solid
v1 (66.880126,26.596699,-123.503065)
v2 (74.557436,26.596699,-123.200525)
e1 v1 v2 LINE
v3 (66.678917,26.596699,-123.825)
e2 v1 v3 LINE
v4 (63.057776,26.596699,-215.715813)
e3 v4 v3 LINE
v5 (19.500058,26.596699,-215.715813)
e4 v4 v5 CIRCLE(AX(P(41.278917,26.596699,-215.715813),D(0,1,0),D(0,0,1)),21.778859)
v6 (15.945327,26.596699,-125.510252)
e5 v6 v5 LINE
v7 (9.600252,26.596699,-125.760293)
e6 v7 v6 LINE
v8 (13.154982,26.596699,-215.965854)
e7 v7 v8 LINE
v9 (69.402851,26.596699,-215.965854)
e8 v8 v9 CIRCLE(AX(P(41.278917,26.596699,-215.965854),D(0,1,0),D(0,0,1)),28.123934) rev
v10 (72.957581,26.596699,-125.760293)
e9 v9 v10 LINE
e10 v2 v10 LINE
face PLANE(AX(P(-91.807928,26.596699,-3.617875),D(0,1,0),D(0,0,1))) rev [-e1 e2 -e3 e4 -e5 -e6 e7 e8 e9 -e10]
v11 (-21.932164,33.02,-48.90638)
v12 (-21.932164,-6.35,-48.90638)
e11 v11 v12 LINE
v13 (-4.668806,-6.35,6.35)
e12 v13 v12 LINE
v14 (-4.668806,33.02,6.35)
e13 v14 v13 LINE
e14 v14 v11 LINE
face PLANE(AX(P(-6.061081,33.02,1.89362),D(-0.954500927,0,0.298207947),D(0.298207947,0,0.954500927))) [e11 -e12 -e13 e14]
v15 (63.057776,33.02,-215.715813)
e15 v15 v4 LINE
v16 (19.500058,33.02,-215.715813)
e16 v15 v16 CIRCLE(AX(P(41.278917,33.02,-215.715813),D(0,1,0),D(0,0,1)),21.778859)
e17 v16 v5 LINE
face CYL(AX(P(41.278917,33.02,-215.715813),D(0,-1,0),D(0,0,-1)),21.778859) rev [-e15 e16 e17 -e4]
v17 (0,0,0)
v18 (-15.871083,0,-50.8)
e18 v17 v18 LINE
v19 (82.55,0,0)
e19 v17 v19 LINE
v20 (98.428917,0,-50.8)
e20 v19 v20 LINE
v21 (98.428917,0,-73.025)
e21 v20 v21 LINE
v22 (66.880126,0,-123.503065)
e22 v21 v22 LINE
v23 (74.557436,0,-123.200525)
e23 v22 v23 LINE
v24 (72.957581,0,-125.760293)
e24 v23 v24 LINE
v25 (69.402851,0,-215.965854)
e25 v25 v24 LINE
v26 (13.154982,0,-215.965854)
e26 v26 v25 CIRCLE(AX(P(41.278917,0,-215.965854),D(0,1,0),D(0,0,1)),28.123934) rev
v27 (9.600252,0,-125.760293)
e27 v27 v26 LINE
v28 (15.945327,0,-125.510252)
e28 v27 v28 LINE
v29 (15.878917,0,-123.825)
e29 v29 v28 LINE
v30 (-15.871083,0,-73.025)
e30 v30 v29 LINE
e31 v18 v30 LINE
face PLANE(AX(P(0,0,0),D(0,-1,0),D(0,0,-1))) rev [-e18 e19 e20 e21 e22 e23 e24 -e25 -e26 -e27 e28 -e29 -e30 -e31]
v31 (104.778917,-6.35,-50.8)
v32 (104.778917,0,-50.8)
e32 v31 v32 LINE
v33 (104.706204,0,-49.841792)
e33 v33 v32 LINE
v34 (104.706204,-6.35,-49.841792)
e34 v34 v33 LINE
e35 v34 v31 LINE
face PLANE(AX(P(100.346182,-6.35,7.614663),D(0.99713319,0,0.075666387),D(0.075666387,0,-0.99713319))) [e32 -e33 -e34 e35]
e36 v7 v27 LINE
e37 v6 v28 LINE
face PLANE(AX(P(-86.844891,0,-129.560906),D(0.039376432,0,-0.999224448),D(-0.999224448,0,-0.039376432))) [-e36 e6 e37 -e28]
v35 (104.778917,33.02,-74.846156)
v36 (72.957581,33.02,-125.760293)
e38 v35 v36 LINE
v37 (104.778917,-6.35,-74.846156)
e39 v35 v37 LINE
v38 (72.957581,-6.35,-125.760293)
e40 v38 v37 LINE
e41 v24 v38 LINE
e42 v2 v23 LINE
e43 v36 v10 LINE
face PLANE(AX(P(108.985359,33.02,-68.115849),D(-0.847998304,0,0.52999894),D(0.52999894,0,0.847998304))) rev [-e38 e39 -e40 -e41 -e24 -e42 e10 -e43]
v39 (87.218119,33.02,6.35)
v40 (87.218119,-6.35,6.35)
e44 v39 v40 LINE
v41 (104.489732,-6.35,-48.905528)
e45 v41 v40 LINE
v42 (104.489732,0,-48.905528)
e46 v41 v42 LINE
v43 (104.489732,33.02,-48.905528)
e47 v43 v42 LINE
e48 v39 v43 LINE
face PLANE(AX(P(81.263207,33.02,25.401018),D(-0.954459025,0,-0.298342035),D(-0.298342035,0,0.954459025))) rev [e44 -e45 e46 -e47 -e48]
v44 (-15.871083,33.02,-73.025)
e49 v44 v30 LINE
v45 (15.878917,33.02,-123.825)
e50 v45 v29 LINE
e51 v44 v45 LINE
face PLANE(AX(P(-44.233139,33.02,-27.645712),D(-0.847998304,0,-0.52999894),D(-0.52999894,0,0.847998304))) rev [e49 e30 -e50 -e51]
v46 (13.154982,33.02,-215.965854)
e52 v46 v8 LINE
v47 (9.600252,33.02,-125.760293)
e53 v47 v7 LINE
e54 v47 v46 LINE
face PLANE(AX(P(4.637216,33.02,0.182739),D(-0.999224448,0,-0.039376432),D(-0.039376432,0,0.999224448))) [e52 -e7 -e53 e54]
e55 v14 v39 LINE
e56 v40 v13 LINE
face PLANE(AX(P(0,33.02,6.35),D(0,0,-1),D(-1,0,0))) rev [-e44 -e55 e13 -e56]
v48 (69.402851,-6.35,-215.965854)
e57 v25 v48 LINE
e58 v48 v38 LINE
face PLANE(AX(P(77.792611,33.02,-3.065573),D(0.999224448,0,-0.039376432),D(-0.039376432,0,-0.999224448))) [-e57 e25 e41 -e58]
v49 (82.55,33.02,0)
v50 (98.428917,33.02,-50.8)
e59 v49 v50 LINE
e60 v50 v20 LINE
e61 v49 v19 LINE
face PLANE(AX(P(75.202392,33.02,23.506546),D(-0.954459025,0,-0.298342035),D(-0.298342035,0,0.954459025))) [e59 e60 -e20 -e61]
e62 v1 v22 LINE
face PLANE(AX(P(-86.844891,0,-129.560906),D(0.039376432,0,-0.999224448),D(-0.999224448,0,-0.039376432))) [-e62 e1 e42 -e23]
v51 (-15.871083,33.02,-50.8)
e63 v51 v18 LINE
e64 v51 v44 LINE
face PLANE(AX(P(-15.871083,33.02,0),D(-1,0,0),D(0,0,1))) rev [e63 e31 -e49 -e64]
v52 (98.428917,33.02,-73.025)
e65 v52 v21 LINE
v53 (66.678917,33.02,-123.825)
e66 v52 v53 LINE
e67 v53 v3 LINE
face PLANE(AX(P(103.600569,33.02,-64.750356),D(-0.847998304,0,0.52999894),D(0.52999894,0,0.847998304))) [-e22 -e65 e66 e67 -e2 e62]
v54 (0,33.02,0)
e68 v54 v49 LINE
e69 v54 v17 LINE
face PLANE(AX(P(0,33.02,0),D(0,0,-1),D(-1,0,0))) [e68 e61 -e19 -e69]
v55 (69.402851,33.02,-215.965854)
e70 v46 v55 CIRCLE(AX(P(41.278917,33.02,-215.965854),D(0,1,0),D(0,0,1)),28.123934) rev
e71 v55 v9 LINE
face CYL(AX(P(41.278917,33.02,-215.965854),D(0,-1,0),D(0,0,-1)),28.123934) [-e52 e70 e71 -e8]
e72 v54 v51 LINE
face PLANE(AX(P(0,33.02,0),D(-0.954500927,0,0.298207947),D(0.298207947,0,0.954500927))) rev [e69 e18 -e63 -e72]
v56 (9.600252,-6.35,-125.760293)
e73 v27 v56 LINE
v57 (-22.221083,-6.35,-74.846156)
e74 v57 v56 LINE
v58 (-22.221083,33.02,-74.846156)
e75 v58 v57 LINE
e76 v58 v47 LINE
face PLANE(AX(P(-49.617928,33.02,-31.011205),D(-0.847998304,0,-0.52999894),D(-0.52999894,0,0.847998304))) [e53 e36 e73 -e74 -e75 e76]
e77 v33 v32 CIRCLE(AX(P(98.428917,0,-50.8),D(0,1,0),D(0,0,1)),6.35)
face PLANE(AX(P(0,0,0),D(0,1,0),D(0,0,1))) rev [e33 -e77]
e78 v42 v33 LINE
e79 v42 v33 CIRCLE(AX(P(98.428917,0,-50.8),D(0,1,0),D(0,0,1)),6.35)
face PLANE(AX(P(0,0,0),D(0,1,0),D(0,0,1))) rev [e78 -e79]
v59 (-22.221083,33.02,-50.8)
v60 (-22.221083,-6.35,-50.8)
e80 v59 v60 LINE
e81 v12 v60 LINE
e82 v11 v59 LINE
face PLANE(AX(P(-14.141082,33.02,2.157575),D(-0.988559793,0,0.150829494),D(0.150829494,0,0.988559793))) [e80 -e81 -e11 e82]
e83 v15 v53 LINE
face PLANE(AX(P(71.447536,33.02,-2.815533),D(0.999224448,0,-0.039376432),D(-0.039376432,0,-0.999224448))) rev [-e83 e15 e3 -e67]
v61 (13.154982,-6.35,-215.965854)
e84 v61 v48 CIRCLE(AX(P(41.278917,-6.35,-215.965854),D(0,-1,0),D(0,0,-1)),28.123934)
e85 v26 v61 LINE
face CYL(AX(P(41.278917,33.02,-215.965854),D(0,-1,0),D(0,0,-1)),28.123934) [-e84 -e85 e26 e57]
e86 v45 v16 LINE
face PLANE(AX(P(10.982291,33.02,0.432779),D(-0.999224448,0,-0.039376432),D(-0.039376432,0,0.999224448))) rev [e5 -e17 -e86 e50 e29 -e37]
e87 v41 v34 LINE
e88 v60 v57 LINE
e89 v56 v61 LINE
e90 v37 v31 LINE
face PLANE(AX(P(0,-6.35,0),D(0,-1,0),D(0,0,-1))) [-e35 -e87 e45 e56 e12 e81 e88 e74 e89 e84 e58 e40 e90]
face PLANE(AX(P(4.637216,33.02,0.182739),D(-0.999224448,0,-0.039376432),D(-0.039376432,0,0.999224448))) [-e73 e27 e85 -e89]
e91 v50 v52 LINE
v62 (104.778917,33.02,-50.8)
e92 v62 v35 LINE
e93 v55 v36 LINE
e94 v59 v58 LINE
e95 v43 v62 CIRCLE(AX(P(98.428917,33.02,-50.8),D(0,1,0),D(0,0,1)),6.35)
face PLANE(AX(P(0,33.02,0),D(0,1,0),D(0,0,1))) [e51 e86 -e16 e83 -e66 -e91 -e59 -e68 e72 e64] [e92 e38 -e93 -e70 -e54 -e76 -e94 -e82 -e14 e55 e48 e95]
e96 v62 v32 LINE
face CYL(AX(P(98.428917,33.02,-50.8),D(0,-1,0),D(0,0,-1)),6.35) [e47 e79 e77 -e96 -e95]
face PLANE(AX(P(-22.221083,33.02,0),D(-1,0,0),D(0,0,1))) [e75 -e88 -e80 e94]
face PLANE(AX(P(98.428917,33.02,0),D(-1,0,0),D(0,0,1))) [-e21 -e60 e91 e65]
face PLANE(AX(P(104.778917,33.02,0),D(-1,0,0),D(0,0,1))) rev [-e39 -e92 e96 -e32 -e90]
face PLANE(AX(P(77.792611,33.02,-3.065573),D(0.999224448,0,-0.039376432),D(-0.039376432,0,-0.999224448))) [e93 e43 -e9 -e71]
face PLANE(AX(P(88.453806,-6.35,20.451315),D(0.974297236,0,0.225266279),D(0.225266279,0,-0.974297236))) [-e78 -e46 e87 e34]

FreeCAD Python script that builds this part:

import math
import FreeCAD as App
import Part
import Sketcher
from FreeCAD import Vector
Q = App.Units.Quantity


def add_polygon(sketch, points):
    """Adds a closed chain of lines whose ends are joined by coincident constraints."""
    first, n = sketch.GeometryCount, len(points)
    for a, b in zip(points, points[1:] + points[:1]):
        sketch.addGeometry(Part.LineSegment(App.Vector(*a, 0), App.Vector(*b, 0)), False)
    for i in range(n):
        sketch.addConstraint(Sketcher.Constraint("Coincident", first + i, 2, first + (i + 1) % n, 1))

doc = App.newDocument("Part")
body = doc.addObject("PartDesign::Body", "Body")

# Sketch on XZ plane
sketch1 = doc.addObject("Sketcher::SketchObject", "Sketch")
body.addObject(sketch1)
sketch1.AttachmentSupport = (doc.XZ_Plane, [""])
sketch1.MapMode = "FlatFace"
sketch1.addGeometry(Part.LineSegment(Vector(-22.221083, -74.846156, 0), Vector(-22.221083, -50.8, 0)), False)
sketch1.addGeometry(Part.LineSegment(Vector(-22.221083, -50.8, 0), Vector(-21.932164, -48.90638, 0)), False)
sketch1.addGeometry(Part.LineSegment(Vector(-21.932164, -48.90638, 0), Vector(-4.668806, 6.35, 0)), False)
sketch1.addGeometry(Part.LineSegment(Vector(-4.668806, 6.35, 0), Vector(87.218119, 6.35, 0)), False)
sketch1.addGeometry(Part.LineSegment(Vector(87.218119, 6.35, 0), Vector(104.489732, -48.905528, 0)), False)
sketch1.addGeometry(Part.ArcOfCircle(Part.Circle(Vector(98.428917, -50.8, 0), Vector(0, 0, 1), 6.35), math.radians(0), math.radians(17.358049)), False)
sketch1.addGeometry(Part.LineSegment(Vector(104.778917, -50.8, 0), Vector(104.778917, -74.846156, 0)), False)
sketch1.addGeometry(Part.LineSegment(Vector(104.778917, -74.846156, 0), Vector(72.957581, -125.760293, 0)), False)
sketch1.addGeometry(Part.LineSegment(Vector(72.957581, -125.760293, 0), Vector(69.402851, -215.965854, 0)), False)
sketch1.addGeometry(Part.ArcOfCircle(Part.Circle(Vector(41.278917, -215.965854, 0), Vector(0, 0, 1), 28.123934), math.radians(-180), math.radians(0)), False)
sketch1.addGeometry(Part.LineSegment(Vector(13.154982, -215.965854, 0), Vector(9.600252, -125.760293, 0)), False)
sketch1.addGeometry(Part.LineSegment(Vector(9.600252, -125.760293, 0), Vector(-22.221083, -74.846156, 0)), False)
sketch1.addGeometry(Part.LineSegment(Vector(98.428917, -50.8, 0), Vector(82.55, 0, 0)), False)
sketch1.addGeometry(Part.LineSegment(Vector(82.55, 0, 0), Vector(0, 0, 0)), False)
sketch1.addGeometry(Part.LineSegment(Vector(0, 0, 0), Vector(-15.871083, -50.8, 0)), False)
sketch1.addGeometry(Part.LineSegment(Vector(-15.871083, -50.8, 0), Vector(-15.871083, -73.025, 0)), False)
sketch1.addGeometry(Part.LineSegment(Vector(-15.871083, -73.025, 0), Vector(15.878917, -123.825, 0)), False)
sketch1.addGeometry(Part.LineSegment(Vector(15.878917, -123.825, 0), Vector(19.500058, -215.715813, 0)), False)
sketch1.addGeometry(Part.ArcOfCircle(Part.Circle(Vector(41.278917, -215.715813, 0), Vector(0, 0, 1), 21.778859), math.radians(180), math.radians(360)), False)
sketch1.addGeometry(Part.LineSegment(Vector(63.057776, -215.715813, 0), Vector(66.678917, -123.825, 0)), False)
sketch1.addGeometry(Part.LineSegment(Vector(66.678917, -123.825, 0), Vector(98.428917, -73.025, 0)), False)
sketch1.addGeometry(Part.LineSegment(Vector(98.428917, -73.025, 0), Vector(98.428917, -50.8, 0)), False)
sketch1.addConstraint(Sketcher.Constraint("Coincident", 0, 2, 1, 1))
sketch1.addConstraint(Sketcher.Constraint("Coincident", 1, 2, 2, 1))
sketch1.addConstraint(Sketcher.Constraint("Coincident", 2, 2, 3, 1))
sketch1.addConstraint(Sketcher.Constraint("Coincident", 3, 2, 4, 1))
sketch1.addConstraint(Sketcher.Constraint("Tangent", 4, 2, 5, 2))
sketch1.addConstraint(Sketcher.Constraint("Tangent", 5, 1, 6, 1))
sketch1.addConstraint(Sketcher.Constraint("Coincident", 6, 2, 7, 1))
sketch1.addConstraint(Sketcher.Constraint("Coincident", 7, 2, 8, 1))
sketch1.addConstraint(Sketcher.Constraint("Coincident", 8, 2, 9, 2))
sketch1.addConstraint(Sketcher.Constraint("Coincident", 9, 1, 10, 1))
sketch1.addConstraint(Sketcher.Constraint("Coincident", 10, 2, 11, 1))
sketch1.addConstraint(Sketcher.Constraint("Coincident", 11, 2, 0, 1))
sketch1.addConstraint(Sketcher.Constraint("Coincident", 12, 2, 13, 1))
sketch1.addConstraint(Sketcher.Constraint("Coincident", 13, 2, 14, 1))
sketch1.addConstraint(Sketcher.Constraint("Coincident", 14, 2, 15, 1))
sketch1.addConstraint(Sketcher.Constraint("Coincident", 15, 2, 16, 1))
sketch1.addConstraint(Sketcher.Constraint("Coincident", 16, 2, 17, 1))
sketch1.addConstraint(Sketcher.Constraint("Coincident", 17, 2, 18, 1))
sketch1.addConstraint(Sketcher.Constraint("Coincident", 18, 2, 19, 1))
sketch1.addConstraint(Sketcher.Constraint("Coincident", 19, 2, 20, 1))
sketch1.addConstraint(Sketcher.Constraint("Coincident", 20, 2, 21, 1))
sketch1.addConstraint(Sketcher.Constraint("Coincident", 21, 2, 12, 1))
sketch1.addConstraint(Sketcher.Constraint("Vertical", 0))
sketch1.addConstraint(Sketcher.Constraint("Horizontal", 3))
sketch1.addConstraint(Sketcher.Constraint("Vertical", 6))
sketch1.addConstraint(Sketcher.Constraint("Horizontal", 13))
sketch1.addConstraint(Sketcher.Constraint("Vertical", 15))
sketch1.addConstraint(Sketcher.Constraint("Vertical", 21))
sketch1.addConstraint(Sketcher.Constraint("Coincident", 13, 2, -1, 1))
sketch1.addConstraint(Sketcher.Constraint("Coincident", 21, 2, 5, 3))
sketch1.addConstraint(Sketcher.Constraint("Parallel", 4, 12))
sketch1.addConstraint(Sketcher.Constraint("Parallel", 2, 14))
sketch1.addConstraint(Sketcher.Constraint("Parallel", 11, 16))
sketch1.addConstraint(Sketcher.Constraint("Parallel", 10, 17))
sketch1.addConstraint(Sketcher.Constraint("Parallel", 8, 19))
sketch1.addConstraint(Sketcher.Constraint("Parallel", 7, 20))
sketch1.addConstraint(Sketcher.Constraint("Horizontal", 5, 3, 0, 2))
sketch1.addConstraint(Sketcher.Constraint("Horizontal", 9, 3, 8, 2))
sketch1.addConstraint(Sketcher.Constraint("Horizontal", 8, 2, 9, 1))
sketch1.addConstraint(Sketcher.Constraint("Horizontal", 7, 2, 10, 2))
sketch1.addConstraint(Sketcher.Constraint("Horizontal", 6, 2, 11, 2))
sketch1.addConstraint(Sketcher.Constraint("Horizontal", 5, 1, 14, 2))
sketch1.addConstraint(Sketcher.Constraint("Horizontal", 18, 3, 17, 2))
sketch1.addConstraint(Sketcher.Constraint("Horizontal", 17, 2, 18, 2))
sketch1.addConstraint(Sketcher.Constraint("Horizontal", 16, 2, 19, 2))
sketch1.addConstraint(Sketcher.Constraint("Horizontal", 15, 2, 20, 2))
sketch1.addConstraint(Sketcher.Constraint("Vertical", 9, 3, 18, 3))
sketch1.addConstraint(Sketcher.Constraint("Equal", 8, 10))
sketch1.addConstraint(Sketcher.Constraint("Equal", 7, 11))
sketch1.addConstraint(Sketcher.Constraint("Radius", 5, Q("0.25 in")))
sketch1.addConstraint(Sketcher.Constraint("DistanceY", 5, 3, -1, 1, Q("2 in")))
sketch1.addConstraint(Sketcher.Constraint("DistanceX", 0, 2, 6, 2, Q("5 in")))
sketch1.addConstraint(Sketcher.Constraint("DistanceY", 16, 2, 15, 2, Q("2 in")))
sketch1.addConstraint(Sketcher.Constraint("DistanceX", 16, 2, 19, 2, Q("2 in")))
sketch1.addConstraint(Sketcher.Constraint("DistanceX", 13, 2, 13, 1, Q("3.25 in")))
sketch1.addConstraint(Sketcher.Constraint("DistanceY", 15, 2, 15, 1, Q("0.875 in")))
sketch1.addConstraint(Sketcher.Constraint("DistanceY", -1, 1, 2, 2, Q("0.25 in")))
sketch1.addConstraint(Sketcher.Constraint("Angle", 2, Q("72.65 deg")))
sketch1.addConstraint(Sketcher.Constraint("Radius", 18, Q("21.778859 mm")))
sketch1.addConstraint(Sketcher.Constraint("Radius", 9, Q("28.123934 mm")))
sketch1.addConstraint(Sketcher.Constraint("DistanceY", 8, 2, 7, 2, Q("3.5514 in")))
sketch1.addConstraint(Sketcher.Constraint("DistanceX", 9, 1, 7, 2, Q("59.802599 mm")))
sketch1.addConstraint(Sketcher.Constraint("DistanceX", 3, 1, 3, 2, Q("91.886925 mm")))
sketch1.addConstraint(Sketcher.Constraint("DistanceY", 0, 1, 0, 2, Q("24.046156 mm")))
sketch1.addConstraint(Sketcher.Constraint("DistanceY", 1, 2, -1, 1, Q("48.90638 mm")))
pad1 = doc.addObject("PartDesign::Pad", "Pad")
body.addObject(pad1)
pad1.Profile = sketch1
pad1.Length = Q("1.3 in")
pad1.Reversed = True

# Sketch on XZ plane
sketch2 = doc.addObject("Sketcher::SketchObject", "Sketch001")
body.addObject(sketch2)
sketch2.AttachmentSupport = (doc.XZ_Plane, [""])
sketch2.MapMode = "FlatFace"
sketch2.AttachmentOffset = App.Placement(Vector(0, 0, 0.25 * 25.4), App.Rotation())
sketch2.addGeometry(Part.LineSegment(Vector(104.778917, -50.8, 0), Vector(104.706204, -49.841792, 0)), False)
sketch2.addGeometry(Part.LineSegment(Vector(104.706204, -49.841792, 0), Vector(104.489732, -48.905528, 0)), False)
sketch2.addGeometry(Part.LineSegment(Vector(104.489732, -48.905528, 0), Vector(87.218119, 6.35, 0)), False)
sketch2.addGeometry(Part.LineSegment(Vector(87.218119, 6.35, 0), Vector(-4.668806, 6.35, 0)), False)
sketch2.addGeometry(Part.LineSegment(Vector(-4.668806, 6.35, 0), Vector(-21.932164, -48.90638, 0)), False)
sketch2.addGeometry(Part.LineSegment(Vector(-21.932164, -48.90638, 0), Vector(-22.221083, -50.8, 0)), False)
sketch2.addGeometry(Part.LineSegment(Vector(-22.221083, -50.8, 0), Vector(-22.221083, -74.846156, 0)), False)
sketch2.addGeometry(Part.LineSegment(Vector(-22.221083, -74.846156, 0), Vector(9.600252, -125.760293, 0)), False)
sketch2.addGeometry(Part.LineSegment(Vector(9.600252, -125.760293, 0), Vector(13.154982, -215.965854, 0)), False)
sketch2.addGeometry(Part.ArcOfCircle(Part.Circle(Vector(41.278917, -215.965854, 0), Vector(0, 0, 1), 28.123934), math.radians(-180), math.radians(0)), False)
sketch2.addGeometry(Part.LineSegment(Vector(69.402851, -215.965854, 0), Vector(72.957581, -125.760293, 0)), False)
sketch2.addGeometry(Part.LineSegment(Vector(72.957581, -125.760293, 0), Vector(104.778917, -74.846156, 0)), False)
sketch2.addGeometry(Part.LineSegment(Vector(104.778917, -74.846156, 0), Vector(104.778917, -50.8, 0)), False)
sketch2.addConstraint(Sketcher.Constraint("Coincident", 0, 2, 1, 1))
sketch2.addConstraint(Sketcher.Constraint("Coincident", 1, 2, 2, 1))
sketch2.addConstraint(Sketcher.Constraint("Coincident", 2, 2, 3, 1))
sketch2.addConstraint(Sketcher.Constraint("Coincident", 3, 2, 4, 1))
sketch2.addConstraint(Sketcher.Constraint("Coincident", 4, 2, 5, 1))
sketch2.addConstraint(Sketcher.Constraint("Coincident", 5, 2, 6, 1))
sketch2.addConstraint(Sketcher.Constraint("Coincident", 6, 2, 7, 1))
sketch2.addConstraint(Sketcher.Constraint("Coincident", 7, 2, 8, 1))
sketch2.addConstraint(Sketcher.Constraint("Coincident", 8, 2, 9, 1))
sketch2.addConstraint(Sketcher.Constraint("Coincident", 9, 2, 10, 1))
sketch2.addConstraint(Sketcher.Constraint("Coincident", 10, 2, 11, 1))
sketch2.addConstraint(Sketcher.Constraint("Coincident", 11, 2, 12, 1))
sketch2.addConstraint(Sketcher.Constraint("Coincident", 12, 2, 0, 1))
sketch2.addConstraint(Sketcher.Constraint("Horizontal", 3))
sketch2.addConstraint(Sketcher.Constraint("Vertical", 6))
sketch2.addConstraint(Sketcher.Constraint("Vertical", 12))
sketch2.addConstraint(Sketcher.Constraint("Horizontal", 9, 3, 8, 2))
sketch2.addConstraint(Sketcher.Constraint("Horizontal", 8, 2, 9, 2))
sketch2.addConstraint(Sketcher.Constraint("Horizontal", 7, 2, 10, 2))
sketch2.addConstraint(Sketcher.Constraint("Horizontal", 6, 2, 11, 2))
sketch2.addConstraint(Sketcher.Constraint("Horizontal", 5, 2, 12, 2))
sketch2.addConstraint(Sketcher.Constraint("Equal", 0, 1))
sketch2.addConstraint(Sketcher.Constraint("Equal", 8, 10))
sketch2.addConstraint(Sketcher.Constraint("Equal", 7, 11))
sketch2.addConstraint(Sketcher.Constraint("DistanceY", 5, 2, -1, 1, Q("2 in")))
sketch2.addConstraint(Sketcher.Constraint("DistanceY", -1, 1, 2, 2, Q("0.25 in")))
sketch2.addConstraint(Sketcher.Constraint("Angle", 4, Q("-107.35 deg")))
sketch2.addConstraint(Sketcher.Constraint("Radius", 9, Q("28.123934 mm")))
sketch2.addConstraint(Sketcher.Constraint("DistanceY", 9, 3, 7, 2, Q("3.5514 in")))
sketch2.addConstraint(Sketcher.Constraint("DistanceY", 7, 2, 0, 2, Q("75.918501 mm")))
sketch2.addConstraint(Sketcher.Constraint("DistanceX", 7, 2, 9, 2, Q("59.802599 mm")))
sketch2.addConstraint(Sketcher.Constraint("DistanceX", 3, 2, 3, 1, Q("91.886925 mm")))
sketch2.addConstraint(Sketcher.Constraint("DistanceY", 6, 2, 6, 1, Q("24.046156 mm")))
sketch2.addConstraint(Sketcher.Constraint("DistanceY", 0, 2, -1, 1, Q("49.841792 mm")))
sketch2.addConstraint(Sketcher.Constraint("DistanceX", -1, 1, 1, 2, Q("104.489732 mm")))
sketch2.addConstraint(Sketcher.Constraint("DistanceY", 1, 2, -1, 1, Q("48.905528 mm")))
sketch2.addConstraint(Sketcher.Constraint("DistanceX", -1, 1, 2, 2, Q("87.218119 mm")))
sketch2.addConstraint(Sketcher.Constraint("DistanceY", 4, 2, -1, 1, Q("48.90638 mm")))
sketch2.addConstraint(Sketcher.Constraint("DistanceX", -1, 1, 9, 2, Q("69.402851 mm")))
sketch2.addConstraint(Sketcher.Constraint("DistanceX", 3, 2, 0, 2, Q("109.37501 mm")))
pad2 = doc.addObject("PartDesign::Pad", "Pad001")
body.addObject(pad2)
pad2.Profile = sketch2
pad2.Length = Q("0.25 in")
pad2.Reversed = True

# Sketch on an angled plane
sketch3 = doc.addObject("Sketcher::SketchObject", "Sketch002")
body.addObject(sketch3)
sketch3.Placement = App.Placement(Vector(4.637216, 0, 0.182739), App.Rotation(Vector(-0.039376432, 0, 0.999224448), Vector(0, 1.000000001, 0), Vector(-0.999224448, 0, -0.039376432), "ZXY"))
add_polygon(sketch3, [(-126.040783, 0), (-126.040783, 26.596699), (-264.690255, 26.596699), (-264.690255, 0)])  # lines 0-3
sketch3.addConstraint(Sketcher.Constraint("Vertical", 0))
sketch3.addConstraint(Sketcher.Constraint("Horizontal", 1))
sketch3.addConstraint(Sketcher.Constraint("Vertical", 2))
sketch3.addConstraint(Sketcher.Constraint("Horizontal", 3))
sketch3.addConstraint(Sketcher.Constraint("PointOnObject", 2, 2, -1))
sketch3.addConstraint(Sketcher.Constraint("DistanceY", 0, 1, 0, 2, Q("26.596699 mm")))
sketch3.addConstraint(Sketcher.Constraint("DistanceX", 1, 2, 1, 1, Q("138.649472 mm")))
sketch3.addConstraint(Sketcher.Constraint("DistanceX", 0, 2, -1, 1, Q("126.040783 mm")))
pocket1 = doc.addObject("PartDesign::Pocket", "Pocket")
body.addObject(pocket1)
pocket1.Profile = sketch3
pocket1.Type = "ThroughAll"
pocket1.Midplane = True

doc.recompute()
